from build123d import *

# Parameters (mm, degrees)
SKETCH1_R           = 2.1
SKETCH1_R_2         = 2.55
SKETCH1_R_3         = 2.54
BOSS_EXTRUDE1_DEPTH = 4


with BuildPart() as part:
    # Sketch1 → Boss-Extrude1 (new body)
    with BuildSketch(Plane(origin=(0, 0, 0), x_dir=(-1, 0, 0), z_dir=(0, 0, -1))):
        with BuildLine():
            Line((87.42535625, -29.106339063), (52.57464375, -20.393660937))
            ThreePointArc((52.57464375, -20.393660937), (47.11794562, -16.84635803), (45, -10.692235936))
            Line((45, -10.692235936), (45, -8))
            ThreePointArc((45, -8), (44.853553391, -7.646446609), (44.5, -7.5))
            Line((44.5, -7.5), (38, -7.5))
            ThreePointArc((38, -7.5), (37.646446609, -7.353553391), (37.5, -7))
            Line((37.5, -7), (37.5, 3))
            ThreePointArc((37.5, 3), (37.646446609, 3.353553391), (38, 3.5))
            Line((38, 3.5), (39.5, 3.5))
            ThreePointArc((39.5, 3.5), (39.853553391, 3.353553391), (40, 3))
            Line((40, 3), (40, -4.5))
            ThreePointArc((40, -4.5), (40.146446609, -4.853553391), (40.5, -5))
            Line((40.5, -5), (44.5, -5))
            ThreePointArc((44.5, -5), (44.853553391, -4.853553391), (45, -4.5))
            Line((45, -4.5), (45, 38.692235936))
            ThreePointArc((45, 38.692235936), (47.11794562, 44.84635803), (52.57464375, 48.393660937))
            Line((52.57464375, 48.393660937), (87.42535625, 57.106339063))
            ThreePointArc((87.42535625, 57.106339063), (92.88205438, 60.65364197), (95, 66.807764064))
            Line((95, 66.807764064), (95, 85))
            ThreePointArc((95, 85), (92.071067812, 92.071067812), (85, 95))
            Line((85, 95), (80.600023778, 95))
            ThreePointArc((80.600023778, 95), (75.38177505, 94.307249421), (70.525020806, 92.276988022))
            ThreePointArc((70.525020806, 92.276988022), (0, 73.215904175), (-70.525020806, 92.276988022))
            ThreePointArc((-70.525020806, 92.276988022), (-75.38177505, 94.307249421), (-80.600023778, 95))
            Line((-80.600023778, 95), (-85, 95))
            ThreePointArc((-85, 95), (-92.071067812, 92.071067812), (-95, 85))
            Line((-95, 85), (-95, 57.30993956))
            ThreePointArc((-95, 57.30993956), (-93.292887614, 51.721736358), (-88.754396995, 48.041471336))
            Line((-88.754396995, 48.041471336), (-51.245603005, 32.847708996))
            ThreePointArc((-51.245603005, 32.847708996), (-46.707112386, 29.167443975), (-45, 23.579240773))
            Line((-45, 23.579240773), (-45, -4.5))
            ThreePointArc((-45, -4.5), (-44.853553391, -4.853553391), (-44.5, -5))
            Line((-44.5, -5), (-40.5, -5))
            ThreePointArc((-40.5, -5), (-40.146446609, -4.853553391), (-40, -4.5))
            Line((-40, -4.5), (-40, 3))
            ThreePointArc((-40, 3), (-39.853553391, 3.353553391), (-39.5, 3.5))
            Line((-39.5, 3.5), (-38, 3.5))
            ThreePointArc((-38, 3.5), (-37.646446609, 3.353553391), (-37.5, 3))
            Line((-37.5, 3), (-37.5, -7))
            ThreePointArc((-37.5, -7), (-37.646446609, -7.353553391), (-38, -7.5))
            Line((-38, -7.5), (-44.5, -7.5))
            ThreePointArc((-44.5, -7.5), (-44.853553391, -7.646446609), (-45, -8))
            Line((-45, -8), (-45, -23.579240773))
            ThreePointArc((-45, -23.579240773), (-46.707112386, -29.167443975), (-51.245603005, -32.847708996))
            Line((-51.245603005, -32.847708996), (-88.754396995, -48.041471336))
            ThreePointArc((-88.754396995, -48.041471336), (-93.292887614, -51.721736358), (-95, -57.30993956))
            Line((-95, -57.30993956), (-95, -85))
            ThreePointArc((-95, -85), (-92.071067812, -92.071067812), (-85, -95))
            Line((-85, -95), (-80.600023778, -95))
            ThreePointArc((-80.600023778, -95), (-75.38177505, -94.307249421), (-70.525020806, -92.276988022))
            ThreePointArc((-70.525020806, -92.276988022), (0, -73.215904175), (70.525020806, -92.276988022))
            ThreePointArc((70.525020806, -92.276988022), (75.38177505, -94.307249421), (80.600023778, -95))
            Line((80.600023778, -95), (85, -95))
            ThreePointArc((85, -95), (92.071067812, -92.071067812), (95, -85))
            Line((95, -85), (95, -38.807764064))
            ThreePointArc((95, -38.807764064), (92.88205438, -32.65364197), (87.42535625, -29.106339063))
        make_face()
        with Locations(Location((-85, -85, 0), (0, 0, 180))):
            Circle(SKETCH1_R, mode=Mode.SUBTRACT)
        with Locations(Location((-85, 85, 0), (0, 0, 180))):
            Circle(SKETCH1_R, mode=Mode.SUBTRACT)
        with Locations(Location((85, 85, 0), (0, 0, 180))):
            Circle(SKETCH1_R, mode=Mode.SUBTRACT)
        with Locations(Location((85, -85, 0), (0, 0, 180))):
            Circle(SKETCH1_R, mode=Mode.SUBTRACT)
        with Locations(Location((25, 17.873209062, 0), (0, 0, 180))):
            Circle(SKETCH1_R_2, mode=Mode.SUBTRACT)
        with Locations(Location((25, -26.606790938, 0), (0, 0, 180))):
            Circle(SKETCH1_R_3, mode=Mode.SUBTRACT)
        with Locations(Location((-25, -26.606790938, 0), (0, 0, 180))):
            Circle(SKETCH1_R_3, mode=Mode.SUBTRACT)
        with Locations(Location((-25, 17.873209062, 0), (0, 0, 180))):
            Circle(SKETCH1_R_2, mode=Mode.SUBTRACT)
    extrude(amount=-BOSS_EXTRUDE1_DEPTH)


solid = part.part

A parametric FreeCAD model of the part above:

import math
import FreeCAD as App
import Part
import Sketcher
from FreeCAD import Vector
Q = App.Units.Quantity

doc = App.newDocument("Part")
body = doc.addObject("PartDesign::Body", "Body")

sketch1 = body.newObject("Sketcher::SketchObject", "Sketch")
sketch1.AttachmentSupport = (doc.getObject("XY_Plane"), [""])
sketch1.MapMode = "FlatFace"
sketch1.addGeometry([
    Part.LineSegment(Vector(-87.43, -29.11, 0), Vector(-52.57, -20.39, 0)),
    Part.ArcOfCircle(Part.Circle(Vector(-55, -10.69, 0), Vector(0, 0, 1), 10), math.radians(-76), math.radians(0)),
    Part.LineSegment(Vector(-45, -10.69, 0), Vector(-45, -8, 0)),
    Part.ArcOfCircle(Part.Circle(Vector(-44.5, -8, 0), Vector(0, 0, 1), 0.5), math.radians(90), math.radians(180)),
    Part.LineSegment(Vector(-44.5, -7.5, 0), Vector(-38, -7.5, 0)),
    Part.ArcOfCircle(Part.Circle(Vector(-38, -7, 0), Vector(0, 0, 1), 0.5), math.radians(-90), math.radians(0)),
    Part.LineSegment(Vector(-37.5, -7, 0), Vector(-37.5, 3, 0)),
    Part.ArcOfCircle(Part.Circle(Vector(-38, 3, 0), Vector(0, 0, 1), 0.5), math.radians(0), math.radians(90)),
    Part.LineSegment(Vector(-38, 3.5, 0), Vector(-39.5, 3.5, 0)),
    Part.ArcOfCircle(Part.Circle(Vector(-39.5, 3, 0), Vector(0, 0, 1), 0.5), math.radians(90), math.radians(180)),
    Part.LineSegment(Vector(-40, 3, 0), Vector(-40, -4.5, 0)),
    Part.ArcOfCircle(Part.Circle(Vector(-40.5, -4.5, 0), Vector(0, 0, 1), 0.5), math.radians(-90), math.radians(0)),
    Part.LineSegment(Vector(-40.5, -5, 0), Vector(-44.5, -5, 0)),
    Part.ArcOfCircle(Part.Circle(Vector(-44.5, -4.5, 0), Vector(0, 0, 1), 0.5), math.radians(180), math.radians(270)),
    Part.LineSegment(Vector(-45, -4.5, 0), Vector(-45, 38.69, 0)),
    Part.ArcOfCircle(Part.Circle(Vector(-55, 38.69, 0), Vector(0, 0, 1), 10), math.radians(0), math.radians(76)),
    Part.LineSegment(Vector(-52.57, 48.39, 0), Vector(-87.43, 57.11, 0)),
    Part.ArcOfCircle(Part.Circle(Vector(-85, 66.81, 0), Vector(0, 0, 1), 10), math.radians(180), math.radians(256)),
    Part.LineSegment(Vector(-95, 66.81, 0), Vector(-95, 85, 0)),
    Part.ArcOfCircle(Part.Circle(Vector(-85, 85, 0), Vector(0, 0, 1), 10), math.radians(90), math.radians(180)),
    Part.LineSegment(Vector(-85, 95, 0), Vector(-80.6, 95, 0)),
    Part.ArcOfCircle(Part.Circle(Vector(-80.6, 75, 0), Vector(0, 0, 1), 20), math.radians(60), math.radians(90)),
    Part.ArcOfCircle(Part.Circle(Vector(0, 213.22, 0), Vector(0, 0, 1), 140), math.radians(-120), math.radians(-60)),
    Part.ArcOfCircle(Part.Circle(Vector(80.6, 75, 0), Vector(0, 0, 1), 20), math.radians(90), math.radians(120)),
    Part.LineSegment(Vector(80.6, 95, 0), Vector(85, 95, 0)),
    Part.ArcOfCircle(Part.Circle(Vector(85, 85, 0), Vector(0, 0, 1), 10), math.radians(0), math.radians(90)),
    Part.LineSegment(Vector(95, 85, 0), Vector(95, 57.31, 0)),
    Part.ArcOfCircle(Part.Circle(Vector(85, 57.31, 0), Vector(0, 0, 1), 10), math.radians(-68), math.radians(0)),
    Part.LineSegment(Vector(88.75, 48.04, 0), Vector(51.25, 32.85, 0)),
    Part.ArcOfCircle(Part.Circle(Vector(55, 23.58, 0), Vector(0, 0, 1), 10), math.radians(112), math.radians(180)),
    Part.LineSegment(Vector(45, 23.58, 0), Vector(45, -4.5, 0)),
    Part.ArcOfCircle(Part.Circle(Vector(44.5, -4.5, 0), Vector(0, 0, 1), 0.5), math.radians(-90), math.radians(0)),
    Part.LineSegment(Vector(44.5, -5, 0), Vector(40.5, -5, 0)),
    Part.ArcOfCircle(Part.Circle(Vector(40.5, -4.5, 0), Vector(0, 0, 1), 0.5), math.radians(180), math.radians(270)),
    Part.LineSegment(Vector(40, -4.5, 0), Vector(40, 3, 0)),
    Part.ArcOfCircle(Part.Circle(Vector(39.5, 3, 0), Vector(0, 0, 1), 0.5), math.radians(0), math.radians(90)),
    Part.LineSegment(Vector(39.5, 3.5, 0), Vector(38, 3.5, 0)),
    Part.ArcOfCircle(Part.Circle(Vector(38, 3, 0), Vector(0, 0, 1), 0.5), math.radians(90), math.radians(180)),
    Part.LineSegment(Vector(37.5, 3, 0), Vector(37.5, -7, 0)),
    Part.ArcOfCircle(Part.Circle(Vector(38, -7, 0), Vector(0, 0, 1), 0.5), math.radians(180), math.radians(270)),
    Part.LineSegment(Vector(38, -7.5, 0), Vector(44.5, -7.5, 0)),
    Part.ArcOfCircle(Part.Circle(Vector(44.5, -8, 0), Vector(0, 0, 1), 0.5), math.radians(0), math.radians(90)),
    Part.LineSegment(Vector(45, -8, 0), Vector(45, -23.58, 0)),
    Part.ArcOfCircle(Part.Circle(Vector(55, -23.58, 0), Vector(0, 0, 1), 10), math.radians(180), math.radians(248)),
    Part.LineSegment(Vector(51.25, -32.85, 0), Vector(88.75, -48.04, 0)),
    Part.ArcOfCircle(Part.Circle(Vector(85, -57.31, 0), Vector(0, 0, 1), 10), math.radians(0), math.radians(68)),
    Part.LineSegment(Vector(95, -57.31, 0), Vector(95, -85, 0)),
    Part.ArcOfCircle(Part.Circle(Vector(85, -85, 0), Vector(0, 0, 1), 10), math.radians(-90), math.radians(0)),
    Part.LineSegment(Vector(85, -95, 0), Vector(80.6, -95, 0)),
    Part.ArcOfCircle(Part.Circle(Vector(80.6, -75, 0), Vector(0, 0, 1), 20), math.radians(-120), math.radians(-90)),
    Part.ArcOfCircle(Part.Circle(Vector(0, -213.22, 0), Vector(0, 0, 1), 140), math.radians(60), math.radians(120)),
    Part.ArcOfCircle(Part.Circle(Vector(-80.6, -75, 0), Vector(0, 0, 1), 20), math.radians(-90), math.radians(-60)),
    Part.LineSegment(Vector(-80.6, -95, 0), Vector(-85, -95, 0)),
    Part.ArcOfCircle(Part.Circle(Vector(-85, -85, 0), Vector(0, 0, 1), 10), math.radians(180), math.radians(270)),
    Part.LineSegment(Vector(-95, -85, 0), Vector(-95, -38.81, 0)),
    Part.ArcOfCircle(Part.Circle(Vector(-85, -38.81, 0), Vector(0, 0, 1), 10), math.radians(104), math.radians(180)),
    Part.Circle(Vector(85, -85, 0), Vector(0, 0, 1), 2.1),
    Part.Circle(Vector(25, -26.61, 0), Vector(0, 0, 1), 2.54),
    Part.Circle(Vector(-85, -85, 0), Vector(0, 0, 1), 2.1),
    Part.Circle(Vector(-25, -26.61, 0), Vector(0, 0, 1), 2.54),
    Part.Circle(Vector(25, 17.87, 0), Vector(0, 0, 1), 2.55),
    Part.Circle(Vector(85, 85, 0), Vector(0, 0, 1), 2.1),
    Part.Circle(Vector(-25, 17.87, 0), Vector(0, 0, 1), 2.55),
    Part.Circle(Vector(-85, 85, 0), Vector(0, 0, 1), 2.1),
], False)
sketch1.addConstraint([
    Sketcher.Constraint("Tangent", 0, 2, 1, 1),
    Sketcher.Constraint("Tangent", 1, 2, 2, 1),
    Sketcher.Constraint("Tangent", 2, 2, 3, 2),
    Sketcher.Constraint("Tangent", 3, 1, 4, 1),
    Sketcher.Constraint("Tangent", 4, 2, 5, 1),
    Sketcher.Constraint("Tangent", 5, 2, 6, 1),
    Sketcher.Constraint("Tangent", 6, 2, 7, 1),
    Sketcher.Constraint("Tangent", 7, 2, 8, 1),
    Sketcher.Constraint("Tangent", 8, 2, 9, 1),
    Sketcher.Constraint("Tangent", 9, 2, 10, 1),
    Sketcher.Constraint("Tangent", 10, 2, 11, 2),
    Sketcher.Constraint("Tangent", 11, 1, 12, 1),
    Sketcher.Constraint("Tangent", 12, 2, 13, 2),
    Sketcher.Constraint("Tangent", 13, 1, 14, 1),
    Sketcher.Constraint("Tangent", 14, 2, 15, 1),
    Sketcher.Constraint("Tangent", 15, 2, 16, 1),
    Sketcher.Constraint("Tangent", 16, 2, 17, 2),
    Sketcher.Constraint("Tangent", 17, 1, 18, 1),
    Sketcher.Constraint("Tangent", 18, 2, 19, 2),
    Sketcher.Constraint("Tangent", 19, 1, 20, 1),
    Sketcher.Constraint("Tangent", 20, 2, 21, 2),
    Sketcher.Constraint("Tangent", 21, 1, 22, 1),
    Sketcher.Constraint("Tangent", 22, 2, 23, 2),
    Sketcher.Constraint("Tangent", 23, 1, 24, 1),
    Sketcher.Constraint("Tangent", 24, 2, 25, 2),
    Sketcher.Constraint("Tangent", 25, 1, 26, 1),
    Sketcher.Constraint("Tangent", 26, 2, 27, 2),
    Sketcher.Constraint("Tangent", 27, 1, 28, 1),
    Sketcher.Constraint("Tangent", 28, 2, 29, 1),
    Sketcher.Constraint("Tangent", 29, 2, 30, 1),
    Sketcher.Constraint("Tangent", 30, 2, 31, 2),
    Sketcher.Constraint("Tangent", 31, 1, 32, 1),
    Sketcher.Constraint("Tangent", 32, 2, 33, 2),
    Sketcher.Constraint("Tangent", 33, 1, 34, 1),
    Sketcher.Constraint("Tangent", 34, 2, 35, 1),
    Sketcher.Constraint("Tangent", 35, 2, 36, 1),
    Sketcher.Constraint("Tangent", 36, 2, 37, 1),
    Sketcher.Constraint("Tangent", 37, 2, 38, 1),
    Sketcher.Constraint("Tangent", 38, 2, 39, 1),
    Sketcher.Constraint("Tangent", 39, 2, 40, 1),
    Sketcher.Constraint("Tangent", 40, 2, 41, 2),
    Sketcher.Constraint("Tangent", 41, 1, 42, 1),
    Sketcher.Constraint("Tangent", 42, 2, 43, 1),
    Sketcher.Constraint("Tangent", 43, 2, 44, 1),
    Sketcher.Constraint("Tangent", 44, 2, 45, 2),
    Sketcher.Constraint("Tangent", 45, 1, 46, 1),
    Sketcher.Constraint("Tangent", 46, 2, 47, 2),
    Sketcher.Constraint("Tangent", 47, 1, 48, 1),
    Sketcher.Constraint("Tangent", 48, 2, 49, 2),
    Sketcher.Constraint("Tangent", 49, 1, 50, 1),
    Sketcher.Constraint("Tangent", 50, 2, 51, 2),
    Sketcher.Constraint("Tangent", 51, 1, 52, 1),
    Sketcher.Constraint("Tangent", 52, 2, 53, 2),
    Sketcher.Constraint("Tangent", 53, 1, 54, 1),
    Sketcher.Constraint("Tangent", 54, 2, 55, 2),
    Sketcher.Constraint("Tangent", 55, 1, 0, 1),
    Sketcher.Constraint("Vertical", 2),
    Sketcher.Constraint("Horizontal", 4),
    Sketcher.Constraint("Vertical", 6),
    Sketcher.Constraint("Horizontal", 8),
    Sketcher.Constraint("Vertical", 10),
    Sketcher.Constraint("Horizontal", 12),
    Sketcher.Constraint("Vertical", 14),
    Sketcher.Constraint("Vertical", 18),
    Sketcher.Constraint("Horizontal", 20),
    Sketcher.Constraint("Horizontal", 24),
    Sketcher.Constraint("Vertical", 26),
    Sketcher.Constraint("Vertical", 30),
    Sketcher.Constraint("Horizontal", 32),
    Sketcher.Constraint("Vertical", 34),
    Sketcher.Constraint("Horizontal", 36),
    Sketcher.Constraint("Vertical", 38),
    Sketcher.Constraint("Horizontal", 40),
    Sketcher.Constraint("Vertical", 42),
    Sketcher.Constraint("Vertical", 46),
    Sketcher.Constraint("Horizontal", 48),
    Sketcher.Constraint("Horizontal", 52),
    Sketcher.Constraint("Vertical", 54),
    Sketcher.Constraint("Coincident", 56, 3, 47, 3),
    Sketcher.Constraint("Coincident", 58, 3, 53, 3),
    Sketcher.Constraint("Coincident", 61, 3, 25, 3),
    Sketcher.Constraint("Coincident", 63, 3, 19, 3),
    Sketcher.Constraint("Equal", 3, 5),
    Sketcher.Constraint("Equal", 5, 7),
    Sketcher.Constraint("Equal", 7, 9),
    Sketcher.Constraint("Equal", 9, 11),
    Sketcher.Constraint("Equal", 11, 13),
    Sketcher.Constraint("Equal", 1, 15),
    Sketcher.Constraint("Equal", 15, 17),
    Sketcher.Constraint("Equal", 17, 19),
    Sketcher.Constraint("Equal", 21, 23),
    Sketcher.Constraint("Equal", 19, 25),
    Sketcher.Constraint("Equal", 25, 27),
    Sketcher.Constraint("Equal", 27, 29),
    Sketcher.Constraint("Equal", 13, 31),
    Sketcher.Constraint("Equal", 31, 33),
    Sketcher.Constraint("Equal", 33, 35),
    Sketcher.Constraint("Equal", 35, 37),
    Sketcher.Constraint("Equal", 37, 39),
    Sketcher.Constraint("Equal", 39, 41),
    Sketcher.Constraint("Equal", 29, 43),
    Sketcher.Constraint("Equal", 43, 45),
    Sketcher.Constraint("Equal", 45, 47),
    Sketcher.Constraint("Equal", 23, 49),
    Sketcher.Constraint("Equal", 22, 50),
    Sketcher.Constraint("Equal", 49, 51),
    Sketcher.Constraint("Equal", 47, 53),
    Sketcher.Constraint("Equal", 53, 55),
    Sketcher.Constraint("Equal", 56, 58),
    Sketcher.Constraint("Equal", 57, 59),
    Sketcher.Constraint("Equal", 58, 61),
    Sketcher.Constraint("Equal", 60, 62),
    Sketcher.Constraint("Equal", 61, 63),
    Sketcher.Constraint("Symmetric", 19, 3, 47, 3, -1, 1),
    Sketcher.Constraint("Symmetric", 22, 3, 50, 3, -1, 1),
    Sketcher.Constraint("Symmetric", 25, 3, 53, 3, -1, 1),
    Sketcher.Constraint("Symmetric", 21, 3, 23, 3, -2),
    Sketcher.Constraint("Symmetric", 13, 3, 31, 3, -2),
    Sketcher.Constraint("Symmetric", 9, 3, 35, 3, -2),
    Sketcher.Constraint("Symmetric", 5, 3, 39, 3, -2),
    Sketcher.Constraint("Symmetric", 57, 3, 59, 3, -2),
    Sketcher.Constraint("Symmetric", 60, 3, 62, 3, -2),
    Sketcher.Constraint("Symmetric", 29, 3, 43, 3, -1),
    Sketcher.Constraint("Symmetric", 27, 3, 45, 3, -1),
    Sketcher.Constraint("Vertical", 3, 3, 13, 3),
    Sketcher.Constraint("Vertical", 57, 3, 60, 3),
    Sketcher.Constraint("Vertical", 0, 2, 15, 2),
    Sketcher.Constraint("Radius", 1, Q("10 mm")),
    Sketcher.Constraint("Radius", 21, Q("20 mm")),
    Sketcher.Constraint("Radius", 22, Q("140 mm")),
    Sketcher.Constraint("Diameter", 56, Q("4.2 mm")),
    Sketcher.Constraint("Diameter", 60, Q("5.1 mm")),
    Sketcher.Constraint("Radius", 3, Q("0.5 mm")),
    Sketcher.Constraint("Diameter", 57, Q("5.08 mm")),
    Sketcher.Constraint("DistanceX", 12, 2, 12, 1, Q("4 mm")),
    Sketcher.Constraint("DistanceY", 6, 1, 6, 2, Q("10 mm")),
    Sketcher.Constraint("DistanceX", 4, 1, 4, 2, Q("6.5 mm")),
    Sketcher.Constraint("DistanceY", 10, 2, 10, 1, Q("7.5 mm")),
    Sketcher.Constraint("DistanceX", 1, 3, -1, 1, Q("55 mm")),
    Sketcher.Constraint("DistanceY", 3, 3, -1, 1, Q("8 mm")),
    Sketcher.Constraint("DistanceX", 17, 3, -1, 1, Q("85 mm")),
    Sketcher.Constraint("DistanceY", -1, 1, 19, 3, Q("85 mm")),
    Sketcher.Constraint("DistanceX", -1, 1, 57, 3, Q("25 mm")),
    Sketcher.Constraint("DistanceY", 26, 2, 26, 1, Q("27.69006 mm")),
    Sketcher.Constraint("DistanceY", 30, 2, 30, 1, Q("28.079241 mm")),
    Sketcher.Constraint("DistanceX", 20, 1, 20, 2, Q("4.399976 mm")),
    Sketcher.Constraint("DistanceY", 2, 1, 2, 2, Q("2.692236 mm")),
    Sketcher.Constraint("DistanceY", 14, 1, 14, 2, Q("43.192236 mm")),
    Sketcher.Constraint("DistanceY", 18, 1, 18, 2, Q("18.192236 mm")),
    Sketcher.Constraint("DistanceY", 57, 3, -1, 1, Q("26.606791 mm")),
    Sketcher.Constraint("DistanceY", -1, 1, 60, 3, Q("17.873209 mm")),
])
pad1 = body.newObject("PartDesign::Pad", "Pad")
pad1.Profile = sketch1
pad1.Length = 4

doc.recompute()
